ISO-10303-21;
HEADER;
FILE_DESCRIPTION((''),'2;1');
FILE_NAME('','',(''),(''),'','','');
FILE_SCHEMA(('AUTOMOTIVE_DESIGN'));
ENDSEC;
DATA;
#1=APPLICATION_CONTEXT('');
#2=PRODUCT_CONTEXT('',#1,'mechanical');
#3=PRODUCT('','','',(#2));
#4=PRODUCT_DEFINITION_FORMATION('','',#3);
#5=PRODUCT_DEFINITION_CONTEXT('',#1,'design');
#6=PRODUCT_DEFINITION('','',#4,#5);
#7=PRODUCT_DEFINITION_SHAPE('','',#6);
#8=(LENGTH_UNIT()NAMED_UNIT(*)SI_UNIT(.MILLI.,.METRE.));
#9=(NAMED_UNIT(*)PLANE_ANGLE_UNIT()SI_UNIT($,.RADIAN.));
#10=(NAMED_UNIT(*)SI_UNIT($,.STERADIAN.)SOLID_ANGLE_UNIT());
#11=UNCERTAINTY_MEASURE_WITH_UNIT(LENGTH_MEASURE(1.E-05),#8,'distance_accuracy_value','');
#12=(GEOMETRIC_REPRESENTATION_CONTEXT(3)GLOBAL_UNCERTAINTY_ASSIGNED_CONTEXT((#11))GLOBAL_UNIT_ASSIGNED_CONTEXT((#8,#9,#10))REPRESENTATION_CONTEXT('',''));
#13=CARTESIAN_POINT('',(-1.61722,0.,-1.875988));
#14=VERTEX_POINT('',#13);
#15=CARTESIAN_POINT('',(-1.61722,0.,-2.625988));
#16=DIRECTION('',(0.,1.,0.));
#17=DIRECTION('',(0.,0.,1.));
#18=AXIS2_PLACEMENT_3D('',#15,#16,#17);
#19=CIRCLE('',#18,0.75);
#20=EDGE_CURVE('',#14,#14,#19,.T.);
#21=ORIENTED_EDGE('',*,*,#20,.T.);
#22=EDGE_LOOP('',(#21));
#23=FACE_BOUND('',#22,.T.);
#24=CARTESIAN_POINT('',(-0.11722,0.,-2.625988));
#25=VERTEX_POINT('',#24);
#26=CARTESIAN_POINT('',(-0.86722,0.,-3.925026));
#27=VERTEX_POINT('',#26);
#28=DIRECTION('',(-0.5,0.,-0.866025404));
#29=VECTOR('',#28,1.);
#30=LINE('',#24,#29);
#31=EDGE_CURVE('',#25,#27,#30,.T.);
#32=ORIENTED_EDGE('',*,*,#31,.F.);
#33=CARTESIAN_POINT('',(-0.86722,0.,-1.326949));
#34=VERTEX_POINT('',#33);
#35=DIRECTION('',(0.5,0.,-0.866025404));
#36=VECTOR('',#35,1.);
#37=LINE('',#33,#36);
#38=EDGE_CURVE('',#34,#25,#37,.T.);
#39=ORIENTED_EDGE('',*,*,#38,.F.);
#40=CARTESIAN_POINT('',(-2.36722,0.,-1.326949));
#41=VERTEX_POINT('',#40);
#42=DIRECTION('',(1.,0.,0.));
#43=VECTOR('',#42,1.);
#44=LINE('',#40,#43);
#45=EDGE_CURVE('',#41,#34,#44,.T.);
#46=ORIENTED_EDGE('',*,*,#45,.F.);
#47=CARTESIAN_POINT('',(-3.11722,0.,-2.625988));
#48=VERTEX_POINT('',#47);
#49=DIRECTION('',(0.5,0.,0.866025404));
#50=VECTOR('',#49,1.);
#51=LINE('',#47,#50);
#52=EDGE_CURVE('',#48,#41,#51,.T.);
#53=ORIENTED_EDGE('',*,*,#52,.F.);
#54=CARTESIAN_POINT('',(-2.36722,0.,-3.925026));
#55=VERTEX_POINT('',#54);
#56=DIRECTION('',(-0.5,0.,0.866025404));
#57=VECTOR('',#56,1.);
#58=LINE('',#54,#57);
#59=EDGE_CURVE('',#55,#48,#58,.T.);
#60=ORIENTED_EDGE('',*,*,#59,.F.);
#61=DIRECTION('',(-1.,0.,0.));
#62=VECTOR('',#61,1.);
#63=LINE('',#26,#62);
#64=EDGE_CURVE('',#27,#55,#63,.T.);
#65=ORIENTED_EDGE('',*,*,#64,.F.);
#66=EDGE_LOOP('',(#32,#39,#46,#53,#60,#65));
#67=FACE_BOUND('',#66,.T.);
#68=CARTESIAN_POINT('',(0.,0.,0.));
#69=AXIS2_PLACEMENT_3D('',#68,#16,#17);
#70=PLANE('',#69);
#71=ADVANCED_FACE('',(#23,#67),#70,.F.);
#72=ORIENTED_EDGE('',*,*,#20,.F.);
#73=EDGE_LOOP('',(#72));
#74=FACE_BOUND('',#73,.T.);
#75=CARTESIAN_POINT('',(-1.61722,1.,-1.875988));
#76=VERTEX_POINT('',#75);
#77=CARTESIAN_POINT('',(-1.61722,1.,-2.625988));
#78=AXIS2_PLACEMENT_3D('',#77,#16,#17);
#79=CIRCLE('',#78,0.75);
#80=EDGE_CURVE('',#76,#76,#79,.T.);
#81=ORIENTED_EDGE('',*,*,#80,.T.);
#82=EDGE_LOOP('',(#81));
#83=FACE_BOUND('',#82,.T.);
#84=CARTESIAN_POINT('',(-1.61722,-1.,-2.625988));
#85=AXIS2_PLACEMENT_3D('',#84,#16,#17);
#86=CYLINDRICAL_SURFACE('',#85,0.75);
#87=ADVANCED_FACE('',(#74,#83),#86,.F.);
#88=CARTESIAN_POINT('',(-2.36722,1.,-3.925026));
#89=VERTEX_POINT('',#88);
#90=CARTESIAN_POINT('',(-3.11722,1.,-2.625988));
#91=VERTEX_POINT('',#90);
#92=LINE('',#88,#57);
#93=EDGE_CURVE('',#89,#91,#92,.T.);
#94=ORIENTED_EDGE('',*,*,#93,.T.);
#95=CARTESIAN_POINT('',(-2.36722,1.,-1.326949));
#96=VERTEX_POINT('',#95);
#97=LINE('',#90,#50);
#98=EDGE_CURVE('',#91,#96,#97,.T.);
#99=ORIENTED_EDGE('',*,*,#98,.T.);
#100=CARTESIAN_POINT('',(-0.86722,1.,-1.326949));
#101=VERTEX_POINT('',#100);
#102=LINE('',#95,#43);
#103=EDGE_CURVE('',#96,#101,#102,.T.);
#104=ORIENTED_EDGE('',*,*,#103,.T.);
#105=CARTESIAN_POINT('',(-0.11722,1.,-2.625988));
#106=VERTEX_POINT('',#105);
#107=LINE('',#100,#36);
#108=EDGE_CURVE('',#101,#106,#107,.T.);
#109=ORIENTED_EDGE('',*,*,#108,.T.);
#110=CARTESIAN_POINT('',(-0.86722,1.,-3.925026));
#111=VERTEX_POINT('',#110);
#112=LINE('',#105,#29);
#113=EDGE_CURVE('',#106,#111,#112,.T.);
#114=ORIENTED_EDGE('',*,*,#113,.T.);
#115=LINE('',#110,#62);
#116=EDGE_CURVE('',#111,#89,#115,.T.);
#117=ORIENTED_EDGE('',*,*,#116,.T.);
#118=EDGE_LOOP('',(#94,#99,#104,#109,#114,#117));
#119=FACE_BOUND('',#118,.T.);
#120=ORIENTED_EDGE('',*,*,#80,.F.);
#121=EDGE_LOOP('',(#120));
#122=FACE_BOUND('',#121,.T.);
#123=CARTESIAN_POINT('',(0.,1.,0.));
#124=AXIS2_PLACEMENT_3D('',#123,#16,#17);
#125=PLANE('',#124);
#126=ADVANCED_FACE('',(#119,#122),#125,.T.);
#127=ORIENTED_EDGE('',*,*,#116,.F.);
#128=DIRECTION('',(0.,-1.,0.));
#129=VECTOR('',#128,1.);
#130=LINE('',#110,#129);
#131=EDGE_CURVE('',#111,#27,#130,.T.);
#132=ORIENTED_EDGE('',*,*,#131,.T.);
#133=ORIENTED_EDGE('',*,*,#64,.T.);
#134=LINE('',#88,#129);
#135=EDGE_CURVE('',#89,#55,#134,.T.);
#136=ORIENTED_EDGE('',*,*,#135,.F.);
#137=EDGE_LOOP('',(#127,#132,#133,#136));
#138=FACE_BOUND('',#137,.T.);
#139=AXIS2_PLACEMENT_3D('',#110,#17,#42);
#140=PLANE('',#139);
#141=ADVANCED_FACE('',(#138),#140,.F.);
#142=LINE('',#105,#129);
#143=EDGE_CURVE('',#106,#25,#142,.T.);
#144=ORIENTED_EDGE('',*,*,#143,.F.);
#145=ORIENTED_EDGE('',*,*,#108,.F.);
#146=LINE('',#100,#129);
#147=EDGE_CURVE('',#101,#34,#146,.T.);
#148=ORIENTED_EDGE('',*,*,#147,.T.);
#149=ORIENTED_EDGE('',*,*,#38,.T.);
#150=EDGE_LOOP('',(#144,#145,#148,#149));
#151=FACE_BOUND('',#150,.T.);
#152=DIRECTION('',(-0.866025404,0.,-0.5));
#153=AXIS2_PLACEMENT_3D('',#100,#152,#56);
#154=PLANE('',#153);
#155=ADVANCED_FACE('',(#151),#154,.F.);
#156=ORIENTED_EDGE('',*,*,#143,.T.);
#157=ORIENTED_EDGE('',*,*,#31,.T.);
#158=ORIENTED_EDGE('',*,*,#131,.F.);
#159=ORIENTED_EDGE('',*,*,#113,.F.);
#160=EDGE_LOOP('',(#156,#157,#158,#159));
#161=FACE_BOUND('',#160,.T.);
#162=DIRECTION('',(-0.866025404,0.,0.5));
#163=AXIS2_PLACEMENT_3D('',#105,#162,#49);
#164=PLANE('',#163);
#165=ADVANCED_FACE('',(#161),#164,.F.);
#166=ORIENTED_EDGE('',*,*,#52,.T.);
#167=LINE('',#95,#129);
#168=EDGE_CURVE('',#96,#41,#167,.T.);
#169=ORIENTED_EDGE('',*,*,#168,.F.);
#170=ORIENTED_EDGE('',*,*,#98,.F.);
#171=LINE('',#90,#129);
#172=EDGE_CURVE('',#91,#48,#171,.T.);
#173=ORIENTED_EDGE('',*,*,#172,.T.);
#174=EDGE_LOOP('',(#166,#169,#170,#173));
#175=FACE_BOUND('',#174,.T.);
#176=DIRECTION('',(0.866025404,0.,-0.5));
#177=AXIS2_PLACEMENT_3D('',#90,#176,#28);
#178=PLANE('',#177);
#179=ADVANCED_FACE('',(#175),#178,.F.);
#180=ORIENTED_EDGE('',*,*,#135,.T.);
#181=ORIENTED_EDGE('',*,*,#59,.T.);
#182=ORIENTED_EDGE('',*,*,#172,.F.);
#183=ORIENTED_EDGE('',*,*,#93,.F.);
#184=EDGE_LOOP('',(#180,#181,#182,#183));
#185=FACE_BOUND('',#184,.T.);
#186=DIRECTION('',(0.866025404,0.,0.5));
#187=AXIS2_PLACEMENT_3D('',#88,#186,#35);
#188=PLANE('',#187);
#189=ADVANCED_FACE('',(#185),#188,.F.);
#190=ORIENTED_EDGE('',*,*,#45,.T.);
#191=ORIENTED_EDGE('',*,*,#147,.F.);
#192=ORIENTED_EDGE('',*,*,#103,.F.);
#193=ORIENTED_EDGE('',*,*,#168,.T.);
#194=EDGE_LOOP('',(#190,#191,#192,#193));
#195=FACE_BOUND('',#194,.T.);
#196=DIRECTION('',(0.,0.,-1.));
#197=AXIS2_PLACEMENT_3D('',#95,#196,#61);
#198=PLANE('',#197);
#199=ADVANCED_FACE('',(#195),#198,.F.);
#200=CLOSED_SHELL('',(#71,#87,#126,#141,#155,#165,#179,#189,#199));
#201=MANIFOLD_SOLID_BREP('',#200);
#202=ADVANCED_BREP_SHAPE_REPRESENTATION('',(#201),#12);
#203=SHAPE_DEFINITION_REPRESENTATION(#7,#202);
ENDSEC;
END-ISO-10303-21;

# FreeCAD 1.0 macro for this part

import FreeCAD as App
import Part
import Sketcher
Q = App.Units.Quantity

doc = App.newDocument("Part")
body = doc.addObject("PartDesign::Body", "Body")

sketch1 = body.newObject("Sketcher::SketchObject", "Sketch")
sketch1.AttachmentSupport = (doc.getObject("XZ_Plane"), [""])
sketch1.MapMode = "FlatFace"
sketch1.addGeometry(Part.LineSegment(App.Vector(-3.1, -2.6, 0), App.Vector(-2.4, -1.3, 0)), False)
sketch1.addGeometry(Part.LineSegment(App.Vector(-2.4, -1.3, 0), App.Vector(-0.9, -1.3, 0)), False)
sketch1.addGeometry(Part.LineSegment(App.Vector(-0.9, -1.3, 0), App.Vector(-0.1, -2.6, 0)), False)
sketch1.addGeometry(Part.LineSegment(App.Vector(-0.1, -2.6, 0), App.Vector(-0.9, -3.9, 0)), False)
sketch1.addGeometry(Part.LineSegment(App.Vector(-0.9, -3.9, 0), App.Vector(-2.4, -3.9, 0)), False)
sketch1.addGeometry(Part.LineSegment(App.Vector(-2.4, -3.9, 0), App.Vector(-3.1, -2.6, 0)), False)
sketch1.addConstraint(Sketcher.Constraint("Coincident", 0, 2, 1, 1))
sketch1.addConstraint(Sketcher.Constraint("Coincident", 1, 2, 2, 1))
sketch1.addConstraint(Sketcher.Constraint("Coincident", 2, 2, 3, 1))
sketch1.addConstraint(Sketcher.Constraint("Coincident", 3, 2, 4, 1))
sketch1.addConstraint(Sketcher.Constraint("Coincident", 4, 2, 5, 1))
sketch1.addConstraint(Sketcher.Constraint("Coincident", 5, 2, 0, 1))
sketch1.addConstraint(Sketcher.Constraint("Horizontal", 1))
sketch1.addConstraint(Sketcher.Constraint("Horizontal", 4))
sketch1.addConstraint(Sketcher.Constraint("Parallel", 0, 3))
sketch1.addConstraint(Sketcher.Constraint("Parallel", 2, 5))
sketch1.addConstraint(Sketcher.Constraint("Horizontal", 2, 2, 5, 2))
sketch1.addConstraint(Sketcher.Constraint("Vertical", 1, 2, 3, 2))
sketch1.addConstraint(Sketcher.Constraint("Vertical", 0, 2, 4, 2))
sketch1.addConstraint(Sketcher.Constraint("Angle", 0, Q("60 deg")))
sketch1.addConstraint(Sketcher.Constraint("DistanceX", 1, 1, 1, 2, Q("1.5 mm")))
sketch1.addConstraint(Sketcher.Constraint("DistanceX", 5, 2, 2, 2, Q("3 mm")))
sketch1.addConstraint(Sketcher.Constraint("DistanceX", 0, 2, -1, 1, Q("2.36722 mm")))
sketch1.addConstraint(Sketcher.Constraint("DistanceY", 0, 2, -1, 1, Q("1.326949 mm")))
pad1 = body.newObject("PartDesign::Pad", "Pad")
pad1.Profile = sketch1
pad1.Length = 1
pad1.Reversed = True

sketch2 = body.newObject("Sketcher::SketchObject", "Sketch001")
sketch2.AttachmentSupport = (doc.getObject("XZ_Plane"), [""])
sketch2.MapMode = "FlatFace"
sketch2.AttachmentOffset = App.Placement(App.Vector(0, 0, -1), App.Rotation())
sketch2.addGeometry(Part.Circle(App.Vector(-1.6, -2.6, 0), App.Vector(0, 0, 1), 0.8), False)
sketch2.addConstraint(Sketcher.Constraint("Diameter", 0, Q("1.5 mm")))
sketch2.addConstraint(Sketcher.Constraint("DistanceX", 0, 3, -1, 1, Q("1.61722 mm")))
sketch2.addConstraint(Sketcher.Constraint("DistanceY", 0, 3, -1, 1, Q("2.625988 mm")))
pocket1 = body.newObject("PartDesign::Pocket", "Pocket")
pocket1.Profile = sketch2
pocket1.Length = 2
pocket1.Reversed = True

doc.recompute()
